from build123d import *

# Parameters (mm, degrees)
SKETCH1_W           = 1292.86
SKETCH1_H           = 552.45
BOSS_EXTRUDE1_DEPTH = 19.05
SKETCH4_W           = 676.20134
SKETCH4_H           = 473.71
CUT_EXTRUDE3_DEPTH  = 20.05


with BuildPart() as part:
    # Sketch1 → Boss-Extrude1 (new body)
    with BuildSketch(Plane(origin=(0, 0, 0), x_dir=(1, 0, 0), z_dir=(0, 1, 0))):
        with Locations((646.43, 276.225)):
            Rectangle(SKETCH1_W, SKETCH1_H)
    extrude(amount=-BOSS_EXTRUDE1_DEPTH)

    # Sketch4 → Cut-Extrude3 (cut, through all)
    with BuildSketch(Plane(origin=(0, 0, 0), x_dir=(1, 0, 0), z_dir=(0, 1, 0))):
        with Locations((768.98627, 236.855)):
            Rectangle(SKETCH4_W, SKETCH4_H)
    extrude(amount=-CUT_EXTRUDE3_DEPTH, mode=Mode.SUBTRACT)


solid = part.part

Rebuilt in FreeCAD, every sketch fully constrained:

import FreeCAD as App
import Part
import Sketcher
from FreeCAD import Vector
Q = App.Units.Quantity

doc = App.newDocument("Part")
body = doc.addObject("PartDesign::Body", "Body")

sketch1 = body.newObject("Sketcher::SketchObject", "Sketch")
sketch1.AttachmentSupport = (doc.getObject("XZ_Plane"), [""])
sketch1.MapMode = "FlatFace"
sketch1.addGeometry([
    Part.LineSegment(Vector(0, -552.45, 0), Vector(0, 0, 0)),
    Part.LineSegment(Vector(0, 0, 0), Vector(1292.86, 0, 0)),
    Part.LineSegment(Vector(1292.86, 0, 0), Vector(1292.86, -552.45, 0)),
    Part.LineSegment(Vector(1292.86, -552.45, 0), Vector(0, -552.45, 0)),
], False)
sketch1.addConstraint([
    Sketcher.Constraint("Coincident", 0, 2, 1, 1),
    Sketcher.Constraint("Coincident", 1, 2, 2, 1),
    Sketcher.Constraint("Coincident", 2, 2, 3, 1),
    Sketcher.Constraint("Coincident", 3, 2, 0, 1),
    Sketcher.Constraint("Vertical", 0),
    Sketcher.Constraint("Horizontal", 1),
    Sketcher.Constraint("Vertical", 2),
    Sketcher.Constraint("Horizontal", 3),
    Sketcher.Constraint("Coincident", 0, 2, -1, 1),
    Sketcher.Constraint("DistanceX", 1, 1, 1, 2, Q("50.9 in")),
    Sketcher.Constraint("DistanceY", 0, 1, 0, 2, Q("21.75 in")),
])
pad1 = body.newObject("PartDesign::Pad", "Pad")
pad1.Profile = sketch1
pad1.Length = Q("0.75 in")

sketch2 = body.newObject("Sketcher::SketchObject", "Sketch001")
sketch2.AttachmentSupport = (doc.getObject("XZ_Plane"), [""])
sketch2.MapMode = "FlatFace"
sketch2.addGeometry([
    Part.LineSegment(Vector(430.8856, -473.71, 0), Vector(430.8856, 0, 0)),
    Part.LineSegment(Vector(430.8856, 0, 0), Vector(1107.08694, 0, 0)),
    Part.LineSegment(Vector(1107.08694, 0, 0), Vector(1107.08694, -473.71, 0)),
    Part.LineSegment(Vector(1107.08694, -473.71, 0), Vector(430.8856, -473.71, 0)),
], False)
sketch2.addConstraint([
    Sketcher.Constraint("Coincident", 0, 2, 1, 1),
    Sketcher.Constraint("Coincident", 1, 2, 2, 1),
    Sketcher.Constraint("Coincident", 2, 2, 3, 1),
    Sketcher.Constraint("Coincident", 3, 2, 0, 1),
    Sketcher.Constraint("Vertical", 0),
    Sketcher.Constraint("Horizontal", 1),
    Sketcher.Constraint("Vertical", 2),
    Sketcher.Constraint("Horizontal", 3),
    Sketcher.Constraint("PointOnObject", 0, 2, -1),
    Sketcher.Constraint("DistanceY", 0, 1, 0, 2, Q("18.65 in")),
    Sketcher.Constraint("DistanceX", 1, 1, 1, 2, Q("26.6221 in")),
    Sketcher.Constraint("DistanceX", -1, 1, 0, 2, Q("16.964 in")),
])
pocket1 = body.newObject("PartDesign::Pocket", "Pocket")
pocket1.Profile = sketch2
pocket1.Type = "ThroughAll"
pocket1.Reversed = True

doc.recompute()
